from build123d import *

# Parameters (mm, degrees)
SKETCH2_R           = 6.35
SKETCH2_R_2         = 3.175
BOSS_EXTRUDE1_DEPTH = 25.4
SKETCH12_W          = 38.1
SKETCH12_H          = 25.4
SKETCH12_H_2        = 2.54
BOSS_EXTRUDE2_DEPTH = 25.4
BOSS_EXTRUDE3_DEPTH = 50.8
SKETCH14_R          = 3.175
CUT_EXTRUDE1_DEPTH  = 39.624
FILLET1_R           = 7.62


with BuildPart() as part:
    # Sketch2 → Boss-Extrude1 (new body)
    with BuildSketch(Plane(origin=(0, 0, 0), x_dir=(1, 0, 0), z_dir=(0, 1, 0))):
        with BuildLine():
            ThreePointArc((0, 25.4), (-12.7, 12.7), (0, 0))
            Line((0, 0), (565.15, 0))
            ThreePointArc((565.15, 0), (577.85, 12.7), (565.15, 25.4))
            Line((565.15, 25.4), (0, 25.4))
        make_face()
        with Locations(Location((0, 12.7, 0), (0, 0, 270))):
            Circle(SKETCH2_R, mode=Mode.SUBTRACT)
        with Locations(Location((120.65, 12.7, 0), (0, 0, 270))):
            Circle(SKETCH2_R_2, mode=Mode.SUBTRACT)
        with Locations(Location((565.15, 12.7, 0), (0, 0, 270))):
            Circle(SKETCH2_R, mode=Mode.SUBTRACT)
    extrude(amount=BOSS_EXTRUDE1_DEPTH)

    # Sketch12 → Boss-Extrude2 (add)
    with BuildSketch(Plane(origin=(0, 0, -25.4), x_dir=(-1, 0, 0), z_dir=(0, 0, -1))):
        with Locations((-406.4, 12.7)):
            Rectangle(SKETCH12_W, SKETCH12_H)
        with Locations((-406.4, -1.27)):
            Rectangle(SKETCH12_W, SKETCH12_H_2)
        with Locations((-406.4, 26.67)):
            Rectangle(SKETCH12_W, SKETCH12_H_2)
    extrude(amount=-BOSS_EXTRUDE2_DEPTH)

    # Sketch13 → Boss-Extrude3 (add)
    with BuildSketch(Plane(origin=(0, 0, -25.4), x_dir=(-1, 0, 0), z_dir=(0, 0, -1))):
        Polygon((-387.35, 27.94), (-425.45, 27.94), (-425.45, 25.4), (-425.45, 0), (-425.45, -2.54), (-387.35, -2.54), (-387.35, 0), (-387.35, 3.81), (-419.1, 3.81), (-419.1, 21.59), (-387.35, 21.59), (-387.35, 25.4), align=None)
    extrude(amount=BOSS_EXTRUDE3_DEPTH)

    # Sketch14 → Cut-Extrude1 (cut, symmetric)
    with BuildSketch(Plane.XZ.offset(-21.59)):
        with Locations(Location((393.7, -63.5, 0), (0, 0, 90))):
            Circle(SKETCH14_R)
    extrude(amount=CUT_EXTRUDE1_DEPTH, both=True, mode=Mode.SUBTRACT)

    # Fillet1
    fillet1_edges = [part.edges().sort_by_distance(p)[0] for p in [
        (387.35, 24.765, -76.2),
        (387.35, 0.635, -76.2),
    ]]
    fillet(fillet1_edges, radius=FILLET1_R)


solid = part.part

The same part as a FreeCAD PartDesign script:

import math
import FreeCAD as App
import Part
import Sketcher

V = App.Vector
Q = App.Units.Quantity


def edges_at(feature, points):
    """Names of the edges that pass closest to the given points."""
    edges = feature.Shape.Edges
    near = lambda p: min(range(len(edges)), key=lambda i: edges[i].distToShape(Part.Vertex(*p))[0])
    return sorted({f"Edge{near(p) + 1}" for p in points})


def add_polygon(sketch, points):
    """Adds a closed chain of lines whose ends are joined by coincident constraints."""
    first, n = sketch.GeometryCount, len(points)
    for a, b in zip(points, points[1:] + points[:1]):
        sketch.addGeometry(Part.LineSegment(App.Vector(*a, 0), App.Vector(*b, 0)), False)
    for i in range(n):
        sketch.addConstraint(Sketcher.Constraint("Coincident", first + i, 2, first + (i + 1) % n, 1))

doc = App.newDocument("Part")
params = doc.addObject("Spreadsheet::Sheet", "Params")
for row, (alias, value) in enumerate([
    ("sketch1_diameter", "0.5 in"),
    ("sketch1_radius", "0.5 in"),
    ("sketch1_diameter2", "0.25 in"),
    ("sketch1_width", "22.25 in"),
    ("pad1_length", "1 in"),
    ("sketch2_width", "1.5 in"),
    ("sketch2_height", "1.2 in"),
    ("pad2_length", "1 in"),
    ("sketch3_width", "1.5 in"),
    ("sketch3_height", "1.2 in"),
    ("sketch3_height2", "0.7 in"),
    ("sketch3_width2", "1.25 in"),
    ("pad3_length", "2 in"),
    ("sketch4_diameter", "0.25 in"),
    ("pocket1_length", "3.12 in"),
    ("fillet_radius", "0.3 in"),
], start=1):
    params.set(f"A{row}", alias)
    params.set(f"B{row}", "=" + value)
    params.setAlias(f"B{row}", alias)

body = doc.addObject("PartDesign::Body", "Body")

sketch1 = body.newObject("Sketcher::SketchObject", "Sketch")
sketch1.AttachmentSupport = (doc.getObject("XZ_Plane"), [""])
sketch1.MapMode = "FlatFace"
sketch1.addGeometry(Part.ArcOfCircle(Part.Circle(V(0, -12.7, 0), V(0, 0, 1), 12.7), math.radians(90), math.radians(270)), False)
sketch1.addGeometry(Part.LineSegment(V(0, 0, 0), V(565.15, 0, 0)), False)
sketch1.addGeometry(Part.ArcOfCircle(Part.Circle(V(565.15, -12.7, 0), V(0, 0, 1), 12.7), math.radians(-90), math.radians(90)), False)
sketch1.addGeometry(Part.LineSegment(V(565.15, -25.4, 0), V(0, -25.4, 0)), False)
sketch1.addGeometry(Part.Circle(V(0, -12.7, 0), V(0, 0, 1), 6.35), False)
sketch1.addGeometry(Part.Circle(V(120.65, -12.7, 0), V(0, 0, 1), 3.175), False)
sketch1.addGeometry(Part.Circle(V(565.15, -12.7, 0), V(0, 0, 1), 6.35), False)
sketch1.addConstraint(Sketcher.Constraint("Tangent", 0, 1, 1, 1))
sketch1.addConstraint(Sketcher.Constraint("Tangent", 1, 2, 2, 2))
sketch1.addConstraint(Sketcher.Constraint("Tangent", 2, 1, 3, 1))
sketch1.addConstraint(Sketcher.Constraint("Tangent", 3, 2, 0, 2))
sketch1.addConstraint(Sketcher.Constraint("Horizontal", 1))
sketch1.addConstraint(Sketcher.Constraint("Horizontal", 3))
sketch1.addConstraint(Sketcher.Constraint("Coincident", 0, 1, -1, 1))
sketch1.addConstraint(Sketcher.Constraint("Coincident", 4, 3, 0, 3))
sketch1.addConstraint(Sketcher.Constraint("Coincident", 6, 3, 2, 3))
sketch1.addConstraint(Sketcher.Constraint("Equal", 4, 6))
sketch1.addConstraint(Sketcher.Constraint("Horizontal", 4, 3, 5, 3))
sketch1.addConstraint(Sketcher.Constraint("Diameter", 4, Q("0.5 in")))
sketch1.addConstraint(Sketcher.Constraint("Radius", 0, Q("0.5 in")))
sketch1.addConstraint(Sketcher.Constraint("Diameter", 5, Q("0.25 in")))
sketch1.addConstraint(Sketcher.Constraint("DistanceX", 1, 1, 1, 2, Q("22.25 in")))
sketch1.addConstraint(Sketcher.Constraint("DistanceX", 5, 3, 2, 3, Q("17.5 in")))
sketch1.setExpression("Constraints[11]", "Params.sketch1_diameter")
sketch1.setExpression("Constraints[12]", "Params.sketch1_radius")
sketch1.setExpression("Constraints[13]", "Params.sketch1_diameter2")
sketch1.setExpression("Constraints[14]", "Params.sketch1_width")
pad1 = body.newObject("PartDesign::Pad", "Pad")
pad1.Profile = sketch1
pad1.setExpression("Length", "Params.pad1_length")
pad1.Reversed = True

sketch2 = body.newObject("Sketcher::SketchObject", "Sketch001")
sketch2.AttachmentSupport = (doc.getObject("XY_Plane"), [""])
sketch2.MapMode = "FlatFace"
sketch2.AttachmentOffset = App.Placement(V(0, 0, -1 * 25.4), App.Rotation())
add_polygon(sketch2, [(425.45, -2.54), (387.35, -2.54), (387.35, 27.94), (425.45, 27.94)])
sketch2.addConstraint(Sketcher.Constraint("Horizontal", 0))
sketch2.addConstraint(Sketcher.Constraint("Vertical", 1))
sketch2.addConstraint(Sketcher.Constraint("Horizontal", 2))
sketch2.addConstraint(Sketcher.Constraint("Vertical", 3))
sketch2.addConstraint(Sketcher.Constraint("DistanceX", 0, 2, 0, 1, Q("1.5 in")))
sketch2.addConstraint(Sketcher.Constraint("DistanceY", 1, 1, 1, 2, Q("1.2 in")))
sketch2.addConstraint(Sketcher.Constraint("DistanceY", 0, 2, -1, 1, Q("0.1 in")))
sketch2.addConstraint(Sketcher.Constraint("DistanceX", -1, 1, 0, 2, Q("15.25 in")))
sketch2.setExpression("Constraints[8]", "Params.sketch2_width")
sketch2.setExpression("Constraints[9]", "Params.sketch2_height")
pad2 = body.newObject("PartDesign::Pad", "Pad001")
pad2.Profile = sketch2
pad2.setExpression("Length", "Params.pad2_length")

sketch3 = body.newObject("Sketcher::SketchObject", "Sketch002")
sketch3.AttachmentSupport = (doc.getObject("XY_Plane"), [""])
sketch3.MapMode = "FlatFace"
sketch3.AttachmentOffset = App.Placement(V(0, 0, -1 * 25.4), App.Rotation())
add_polygon(sketch3, [(387.35, 27.94), (425.45, 27.94), (425.45, -2.54), (387.35, -2.54), (387.35, 3.81), (419.1, 3.81), (419.1, 21.59), (387.35, 21.59)])
sketch3.addConstraint(Sketcher.Constraint("Horizontal", 0))
sketch3.addConstraint(Sketcher.Constraint("Vertical", 1))
sketch3.addConstraint(Sketcher.Constraint("Horizontal", 2))
sketch3.addConstraint(Sketcher.Constraint("Vertical", 3))
sketch3.addConstraint(Sketcher.Constraint("Horizontal", 4))
sketch3.addConstraint(Sketcher.Constraint("Vertical", 5))
sketch3.addConstraint(Sketcher.Constraint("Horizontal", 6))
sketch3.addConstraint(Sketcher.Constraint("Vertical", 7))
sketch3.addConstraint(Sketcher.Constraint("Vertical", 3, 2, 6, 2))
sketch3.addConstraint(Sketcher.Constraint("Equal", 3, 7))
sketch3.addConstraint(Sketcher.Constraint("DistanceX", 0, 1, 0, 2, Q("1.5 in")))
sketch3.addConstraint(Sketcher.Constraint("DistanceY", 1, 2, 1, 1, Q("1.2 in")))
sketch3.addConstraint(Sketcher.Constraint("DistanceY", 5, 1, 5, 2, Q("0.7 in")))
sketch3.addConstraint(Sketcher.Constraint("DistanceX", 4, 1, 4, 2, Q("1.25 in")))
sketch3.addConstraint(Sketcher.Constraint("DistanceY", -1, 1, 0, 2, Q("1.1 in")))
sketch3.addConstraint(Sketcher.Constraint("DistanceX", -1, 1, 4, 2, Q("16.5 in")))
sketch3.setExpression("Constraints[18]", "Params.sketch3_width")
sketch3.setExpression("Constraints[19]", "Params.sketch3_height")
sketch3.setExpression("Constraints[20]", "Params.sketch3_height2")
sketch3.setExpression("Constraints[21]", "Params.sketch3_width2")
pad3 = body.newObject("PartDesign::Pad", "Pad002")
pad3.Profile = sketch3
pad3.setExpression("Length", "Params.pad3_length")
pad3.Reversed = True

sketch4 = body.newObject("Sketcher::SketchObject", "Sketch003")
sketch4.AttachmentSupport = (doc.getObject("XZ_Plane"), [""])
sketch4.MapMode = "FlatFace"
sketch4.AttachmentOffset = App.Placement(V(0, 0, -0.85 * 25.4), App.Rotation())
sketch4.addGeometry(Part.Circle(V(393.7, -63.5, 0), V(0, 0, 1), 3.175), False)
sketch4.addConstraint(Sketcher.Constraint("Diameter", 0, Q("0.25 in")))
sketch4.addConstraint(Sketcher.Constraint("DistanceX", -1, 1, 0, 3, Q("15.5 in")))
sketch4.addConstraint(Sketcher.Constraint("DistanceY", 0, 3, -1, 1, Q("2.5 in")))
sketch4.setExpression("Constraints[0]", "Params.sketch4_diameter")
pocket1 = body.newObject("PartDesign::Pocket", "Pocket")
pocket1.Profile = sketch4
pocket1.setExpression("Length", "Params.pocket1_length")
pocket1.Midplane = True
doc.recompute()

fillet = body.newObject("PartDesign::Fillet", "Fillet")
fillet.Base = (pocket1, edges_at(pocket1, [(387.35, 24.765, -76.2), (387.35, 0.635, -76.2)]))
fillet.setExpression("Radius", "Params.fillet_radius")

doc.recompute()
